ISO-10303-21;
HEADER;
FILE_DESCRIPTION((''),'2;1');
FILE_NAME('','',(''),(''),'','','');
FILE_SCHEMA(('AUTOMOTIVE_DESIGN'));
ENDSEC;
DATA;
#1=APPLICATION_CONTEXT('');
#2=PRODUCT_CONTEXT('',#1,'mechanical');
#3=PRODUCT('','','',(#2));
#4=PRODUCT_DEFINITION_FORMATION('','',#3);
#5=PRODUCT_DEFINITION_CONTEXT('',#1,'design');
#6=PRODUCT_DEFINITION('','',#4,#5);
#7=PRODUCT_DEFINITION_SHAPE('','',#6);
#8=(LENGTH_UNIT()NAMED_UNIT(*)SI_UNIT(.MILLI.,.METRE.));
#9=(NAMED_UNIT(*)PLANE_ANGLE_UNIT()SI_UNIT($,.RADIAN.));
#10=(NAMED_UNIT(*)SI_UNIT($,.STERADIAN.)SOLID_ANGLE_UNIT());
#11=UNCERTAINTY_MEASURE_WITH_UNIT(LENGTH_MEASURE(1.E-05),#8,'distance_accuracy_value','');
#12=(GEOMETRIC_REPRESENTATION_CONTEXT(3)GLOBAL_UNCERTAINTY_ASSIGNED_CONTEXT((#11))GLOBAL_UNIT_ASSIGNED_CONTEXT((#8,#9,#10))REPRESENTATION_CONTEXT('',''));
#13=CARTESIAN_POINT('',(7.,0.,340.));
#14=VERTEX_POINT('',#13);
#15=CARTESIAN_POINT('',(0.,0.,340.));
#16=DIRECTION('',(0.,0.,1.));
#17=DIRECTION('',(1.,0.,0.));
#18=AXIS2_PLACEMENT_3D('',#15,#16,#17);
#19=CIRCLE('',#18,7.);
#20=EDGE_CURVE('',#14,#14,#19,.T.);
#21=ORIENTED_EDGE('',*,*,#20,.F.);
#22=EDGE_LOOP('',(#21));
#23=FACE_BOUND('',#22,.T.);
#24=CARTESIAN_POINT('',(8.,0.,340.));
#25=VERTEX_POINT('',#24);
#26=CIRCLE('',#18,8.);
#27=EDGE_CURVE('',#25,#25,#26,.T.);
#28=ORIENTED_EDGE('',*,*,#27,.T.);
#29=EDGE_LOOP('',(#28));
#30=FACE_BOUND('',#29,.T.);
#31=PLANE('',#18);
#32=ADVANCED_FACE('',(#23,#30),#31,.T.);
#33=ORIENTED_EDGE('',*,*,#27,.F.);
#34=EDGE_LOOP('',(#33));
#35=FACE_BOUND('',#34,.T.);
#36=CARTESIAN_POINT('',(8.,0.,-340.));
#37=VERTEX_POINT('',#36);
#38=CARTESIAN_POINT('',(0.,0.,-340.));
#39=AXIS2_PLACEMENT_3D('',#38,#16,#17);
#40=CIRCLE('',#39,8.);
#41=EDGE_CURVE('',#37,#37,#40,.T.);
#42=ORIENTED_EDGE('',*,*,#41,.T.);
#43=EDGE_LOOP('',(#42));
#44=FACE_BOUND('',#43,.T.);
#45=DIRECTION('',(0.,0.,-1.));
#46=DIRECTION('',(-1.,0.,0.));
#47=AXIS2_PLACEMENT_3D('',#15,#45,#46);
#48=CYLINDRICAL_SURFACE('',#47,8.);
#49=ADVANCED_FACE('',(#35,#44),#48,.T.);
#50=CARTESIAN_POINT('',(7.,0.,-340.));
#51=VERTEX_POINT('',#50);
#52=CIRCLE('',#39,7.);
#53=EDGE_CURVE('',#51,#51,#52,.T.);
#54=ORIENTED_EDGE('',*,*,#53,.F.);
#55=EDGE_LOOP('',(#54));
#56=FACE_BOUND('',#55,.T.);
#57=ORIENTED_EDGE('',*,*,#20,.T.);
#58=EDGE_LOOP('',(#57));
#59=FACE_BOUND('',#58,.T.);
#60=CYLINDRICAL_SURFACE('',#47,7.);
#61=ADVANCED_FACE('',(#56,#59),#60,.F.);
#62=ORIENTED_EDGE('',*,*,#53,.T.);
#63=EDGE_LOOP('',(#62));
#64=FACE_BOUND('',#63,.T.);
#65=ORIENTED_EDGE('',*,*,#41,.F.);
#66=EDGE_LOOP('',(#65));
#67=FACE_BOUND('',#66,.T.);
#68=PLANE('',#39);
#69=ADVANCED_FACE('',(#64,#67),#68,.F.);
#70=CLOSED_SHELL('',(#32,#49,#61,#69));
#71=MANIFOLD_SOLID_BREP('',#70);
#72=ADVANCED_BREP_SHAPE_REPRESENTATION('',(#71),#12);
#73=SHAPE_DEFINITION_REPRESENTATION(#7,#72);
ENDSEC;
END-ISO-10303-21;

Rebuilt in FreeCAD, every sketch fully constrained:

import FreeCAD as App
import Part
import Sketcher
Q = App.Units.Quantity

doc = App.newDocument("Part")
body = doc.addObject("PartDesign::Body", "Body")

# Sketch on XY plane
sketch1 = doc.addObject("Sketcher::SketchObject", "Sketch")
body.addObject(sketch1)
sketch1.AttachmentSupport = (doc.XY_Plane, [""])
sketch1.MapMode = "FlatFace"
sketch1.addGeometry([
    Part.Circle(App.Vector(0, 0, 0), App.Vector(0, 0, 1), 8),
    Part.Circle(App.Vector(0, 0, 0), App.Vector(0, 0, 1), 7),
], False)
sketch1.addConstraint([
    Sketcher.Constraint("Coincident", 0, 3, -1, 1),
    Sketcher.Constraint("Coincident", 1, 3, -1, 1),
    Sketcher.Constraint("Diameter", 0, Q("16 mm")),
    Sketcher.Constraint("Diameter", 1, Q("14 mm")),
])
pad1 = doc.addObject("PartDesign::Pad", "Pad")
body.addObject(pad1)
pad1.Profile = sketch1
pad1.Length = 680
pad1.Midplane = True

doc.recompute()
